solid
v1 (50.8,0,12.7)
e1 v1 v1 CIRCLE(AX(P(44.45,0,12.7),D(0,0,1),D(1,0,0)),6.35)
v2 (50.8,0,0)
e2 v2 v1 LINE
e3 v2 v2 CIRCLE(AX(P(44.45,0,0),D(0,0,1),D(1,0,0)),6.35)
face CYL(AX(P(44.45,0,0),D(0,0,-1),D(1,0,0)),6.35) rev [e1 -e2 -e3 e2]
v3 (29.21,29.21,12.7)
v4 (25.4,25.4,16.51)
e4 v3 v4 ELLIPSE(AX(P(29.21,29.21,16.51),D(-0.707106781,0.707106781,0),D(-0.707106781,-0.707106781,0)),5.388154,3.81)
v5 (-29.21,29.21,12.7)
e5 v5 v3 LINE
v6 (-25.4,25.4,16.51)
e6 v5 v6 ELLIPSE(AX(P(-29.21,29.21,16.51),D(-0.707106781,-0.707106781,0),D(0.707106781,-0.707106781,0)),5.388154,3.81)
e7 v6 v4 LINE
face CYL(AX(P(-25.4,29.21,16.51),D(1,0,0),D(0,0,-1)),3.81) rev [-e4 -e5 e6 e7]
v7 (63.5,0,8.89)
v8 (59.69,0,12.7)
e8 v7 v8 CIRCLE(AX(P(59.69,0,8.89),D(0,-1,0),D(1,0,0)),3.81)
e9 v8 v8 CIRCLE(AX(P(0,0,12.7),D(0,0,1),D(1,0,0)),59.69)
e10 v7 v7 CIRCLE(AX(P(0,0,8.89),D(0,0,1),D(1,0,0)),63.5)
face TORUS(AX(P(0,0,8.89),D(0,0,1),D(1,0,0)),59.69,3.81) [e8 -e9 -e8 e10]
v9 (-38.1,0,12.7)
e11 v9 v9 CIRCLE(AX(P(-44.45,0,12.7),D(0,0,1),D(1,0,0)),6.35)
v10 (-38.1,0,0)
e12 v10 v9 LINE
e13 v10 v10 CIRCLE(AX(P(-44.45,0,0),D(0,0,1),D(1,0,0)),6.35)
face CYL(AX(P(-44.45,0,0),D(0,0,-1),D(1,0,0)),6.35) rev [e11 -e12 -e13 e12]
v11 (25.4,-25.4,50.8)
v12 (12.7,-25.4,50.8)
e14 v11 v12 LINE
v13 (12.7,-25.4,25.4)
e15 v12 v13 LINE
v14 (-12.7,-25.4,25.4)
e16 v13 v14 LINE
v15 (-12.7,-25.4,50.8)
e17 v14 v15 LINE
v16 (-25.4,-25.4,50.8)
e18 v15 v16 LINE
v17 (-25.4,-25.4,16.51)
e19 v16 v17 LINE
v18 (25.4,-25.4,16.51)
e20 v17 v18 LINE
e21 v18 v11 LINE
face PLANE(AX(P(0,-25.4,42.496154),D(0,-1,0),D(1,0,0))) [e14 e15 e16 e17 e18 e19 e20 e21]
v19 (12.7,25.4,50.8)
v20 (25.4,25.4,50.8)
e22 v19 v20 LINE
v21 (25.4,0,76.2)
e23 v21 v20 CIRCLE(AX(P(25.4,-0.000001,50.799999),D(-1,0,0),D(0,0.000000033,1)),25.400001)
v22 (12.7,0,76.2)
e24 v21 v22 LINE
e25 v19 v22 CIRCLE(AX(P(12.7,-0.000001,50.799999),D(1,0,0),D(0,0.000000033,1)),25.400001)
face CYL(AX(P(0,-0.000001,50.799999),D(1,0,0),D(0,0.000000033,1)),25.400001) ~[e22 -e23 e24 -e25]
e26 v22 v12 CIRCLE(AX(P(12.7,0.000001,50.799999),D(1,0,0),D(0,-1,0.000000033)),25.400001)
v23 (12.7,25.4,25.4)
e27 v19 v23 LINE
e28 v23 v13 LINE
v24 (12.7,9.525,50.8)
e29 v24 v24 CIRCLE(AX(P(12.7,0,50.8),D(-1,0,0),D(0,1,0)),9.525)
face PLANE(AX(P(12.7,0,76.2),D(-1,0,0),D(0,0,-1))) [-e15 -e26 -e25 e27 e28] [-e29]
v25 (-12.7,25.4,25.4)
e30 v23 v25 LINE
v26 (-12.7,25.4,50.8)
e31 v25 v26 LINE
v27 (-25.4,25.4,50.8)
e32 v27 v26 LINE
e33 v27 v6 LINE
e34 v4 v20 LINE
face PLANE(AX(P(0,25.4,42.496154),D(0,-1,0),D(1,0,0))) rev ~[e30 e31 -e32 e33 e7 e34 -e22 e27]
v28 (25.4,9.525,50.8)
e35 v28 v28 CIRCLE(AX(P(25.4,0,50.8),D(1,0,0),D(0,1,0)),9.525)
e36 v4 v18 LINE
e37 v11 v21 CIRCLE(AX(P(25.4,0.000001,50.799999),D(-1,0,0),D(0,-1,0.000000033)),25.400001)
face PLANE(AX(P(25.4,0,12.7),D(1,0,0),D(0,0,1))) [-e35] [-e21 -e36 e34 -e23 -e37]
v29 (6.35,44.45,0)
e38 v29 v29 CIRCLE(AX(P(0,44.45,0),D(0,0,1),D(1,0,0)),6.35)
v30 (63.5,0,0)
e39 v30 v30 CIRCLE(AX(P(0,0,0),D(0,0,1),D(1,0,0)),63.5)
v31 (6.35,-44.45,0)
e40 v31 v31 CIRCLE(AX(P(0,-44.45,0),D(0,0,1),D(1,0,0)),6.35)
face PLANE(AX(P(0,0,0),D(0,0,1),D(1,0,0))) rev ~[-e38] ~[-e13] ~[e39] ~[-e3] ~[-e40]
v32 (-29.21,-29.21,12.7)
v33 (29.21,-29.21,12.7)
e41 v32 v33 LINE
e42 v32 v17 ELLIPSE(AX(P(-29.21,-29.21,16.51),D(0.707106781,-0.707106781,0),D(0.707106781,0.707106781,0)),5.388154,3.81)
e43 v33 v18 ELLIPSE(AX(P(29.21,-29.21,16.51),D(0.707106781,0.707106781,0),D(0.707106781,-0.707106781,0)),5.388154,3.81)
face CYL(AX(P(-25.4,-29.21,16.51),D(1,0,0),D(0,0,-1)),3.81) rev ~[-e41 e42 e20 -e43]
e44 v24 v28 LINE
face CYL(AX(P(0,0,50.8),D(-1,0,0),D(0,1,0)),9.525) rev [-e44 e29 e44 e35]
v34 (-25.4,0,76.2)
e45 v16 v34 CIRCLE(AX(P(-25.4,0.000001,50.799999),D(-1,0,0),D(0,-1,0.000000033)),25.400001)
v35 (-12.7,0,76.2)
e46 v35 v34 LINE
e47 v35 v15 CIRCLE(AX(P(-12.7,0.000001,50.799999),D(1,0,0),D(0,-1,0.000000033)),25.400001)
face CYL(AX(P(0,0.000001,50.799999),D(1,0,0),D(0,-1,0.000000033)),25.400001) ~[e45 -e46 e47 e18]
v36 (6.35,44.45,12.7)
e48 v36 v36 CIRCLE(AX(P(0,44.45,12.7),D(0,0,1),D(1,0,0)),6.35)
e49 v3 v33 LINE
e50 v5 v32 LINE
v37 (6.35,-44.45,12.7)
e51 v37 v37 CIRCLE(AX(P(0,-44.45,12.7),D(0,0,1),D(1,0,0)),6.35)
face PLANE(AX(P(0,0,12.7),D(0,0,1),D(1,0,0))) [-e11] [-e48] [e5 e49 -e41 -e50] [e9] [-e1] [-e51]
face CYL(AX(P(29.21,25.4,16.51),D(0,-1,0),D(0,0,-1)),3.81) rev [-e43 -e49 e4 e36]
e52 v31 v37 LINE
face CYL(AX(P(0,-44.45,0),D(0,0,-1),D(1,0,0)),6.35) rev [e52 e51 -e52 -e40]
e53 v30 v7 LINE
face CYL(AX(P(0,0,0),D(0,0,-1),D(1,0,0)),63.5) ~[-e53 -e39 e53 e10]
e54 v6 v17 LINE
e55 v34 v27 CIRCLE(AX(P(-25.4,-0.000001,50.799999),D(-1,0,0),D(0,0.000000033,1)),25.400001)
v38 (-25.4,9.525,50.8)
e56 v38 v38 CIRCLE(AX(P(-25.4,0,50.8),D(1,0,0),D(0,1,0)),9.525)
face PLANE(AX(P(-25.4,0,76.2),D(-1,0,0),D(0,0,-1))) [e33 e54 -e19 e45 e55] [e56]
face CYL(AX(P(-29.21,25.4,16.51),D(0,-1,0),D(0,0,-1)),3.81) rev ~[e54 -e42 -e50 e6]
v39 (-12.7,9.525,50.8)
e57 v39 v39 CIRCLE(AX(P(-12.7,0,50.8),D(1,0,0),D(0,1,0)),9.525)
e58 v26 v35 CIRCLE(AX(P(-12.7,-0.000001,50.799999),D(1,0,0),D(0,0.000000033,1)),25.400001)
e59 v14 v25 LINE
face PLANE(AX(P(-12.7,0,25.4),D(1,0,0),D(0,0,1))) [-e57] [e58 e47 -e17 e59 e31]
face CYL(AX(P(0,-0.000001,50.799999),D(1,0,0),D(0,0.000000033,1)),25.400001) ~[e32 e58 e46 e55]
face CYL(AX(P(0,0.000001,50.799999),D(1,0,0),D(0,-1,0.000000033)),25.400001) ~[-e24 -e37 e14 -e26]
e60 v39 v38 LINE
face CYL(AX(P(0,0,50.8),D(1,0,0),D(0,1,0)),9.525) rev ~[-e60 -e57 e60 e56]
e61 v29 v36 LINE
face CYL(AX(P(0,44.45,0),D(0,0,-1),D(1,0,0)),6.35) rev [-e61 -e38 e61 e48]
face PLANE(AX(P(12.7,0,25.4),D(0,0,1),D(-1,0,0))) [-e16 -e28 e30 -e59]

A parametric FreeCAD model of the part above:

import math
import FreeCAD as App
import Part
import Sketcher
from FreeCAD import Vector
Q = App.Units.Quantity


def edges_at(feature, points):
    """Names of the edges that pass closest to the given points."""
    edges = feature.Shape.Edges
    near = lambda p: min(range(len(edges)), key=lambda i: edges[i].distToShape(Part.Vertex(*p))[0])
    return sorted({f"Edge{near(p) + 1}" for p in points})


def add_polygon(sketch, points):
    """Adds a closed chain of lines whose ends are joined by coincident constraints."""
    first, n = sketch.GeometryCount, len(points)
    for a, b in zip(points, points[1:] + points[:1]):
        sketch.addGeometry(Part.LineSegment(App.Vector(*a, 0), App.Vector(*b, 0)), False)
    for i in range(n):
        sketch.addConstraint(Sketcher.Constraint("Coincident", first + i, 2, first + (i + 1) % n, 1))

doc = App.newDocument("Part")
body = doc.addObject("PartDesign::Body", "Body")

# Sketch on XY plane
sketch1 = doc.addObject("Sketcher::SketchObject", "Sketch")
body.addObject(sketch1)
sketch1.AttachmentSupport = (doc.XY_Plane, [""])
sketch1.MapMode = "FlatFace"
sketch1.addGeometry(Part.Circle(Vector(0, 0, 0), Vector(0, 0, 1), 64), False)
sketch1.addGeometry(Part.Circle(Vector(0, -44, 0), Vector(0, 0, 1), 6), False)
sketch1.addGeometry(Part.Circle(Vector(-44, 0, 0), Vector(0, 0, 1), 6), False)
sketch1.addGeometry(Part.Circle(Vector(44, 0, 0), Vector(0, 0, 1), 6), False)
sketch1.addGeometry(Part.Circle(Vector(0, 44, 0), Vector(0, 0, 1), 6), False)
sketch1.addConstraint(Sketcher.Constraint("Coincident", 0, 3, -1, 1))
sketch1.addConstraint(Sketcher.Constraint("Equal", 1, 2))
sketch1.addConstraint(Sketcher.Constraint("Equal", 2, 3))
sketch1.addConstraint(Sketcher.Constraint("Equal", 3, 4))
sketch1.addConstraint(Sketcher.Constraint("Symmetric", 2, 3, 3, 3, -1, 1))
sketch1.addConstraint(Sketcher.Constraint("Symmetric", 1, 3, 4, 3, -1, 1))
sketch1.addConstraint(Sketcher.Constraint("PointOnObject", 1, 3, -2))
sketch1.addConstraint(Sketcher.Constraint("PointOnObject", 2, 3, -1))
sketch1.addConstraint(Sketcher.Constraint("Diameter", 0, Q("5 in")))
sketch1.addConstraint(Sketcher.Constraint("Diameter", 1, Q("0.5 in")))
sketch1.addConstraint(Sketcher.Constraint("DistanceX", 2, 3, 3, 3, Q("3.5 in")))
sketch1.addConstraint(Sketcher.Constraint("DistanceY", 1, 3, 4, 3, Q("3.5 in")))
pad1 = doc.addObject("PartDesign::Pad", "Pad")
body.addObject(pad1)
pad1.Profile = sketch1
pad1.Length = Q("0.5 in")

# Sketch on XZ plane
sketch2 = doc.addObject("Sketcher::SketchObject", "Sketch001")
body.addObject(sketch2)
sketch2.AttachmentSupport = (doc.XZ_Plane, [""])
sketch2.MapMode = "FlatFace"
add_polygon(sketch2, [(-25, 76), (-25, 13), (25, 13), (25, 76), (13, 76), (13, 25), (-13, 25), (-13, 76)])  # lines 0-7
sketch2.addConstraint(Sketcher.Constraint("Vertical", 0))
sketch2.addConstraint(Sketcher.Constraint("Horizontal", 1))
sketch2.addConstraint(Sketcher.Constraint("Vertical", 2))
sketch2.addConstraint(Sketcher.Constraint("Horizontal", 3))
sketch2.addConstraint(Sketcher.Constraint("Vertical", 4))
sketch2.addConstraint(Sketcher.Constraint("Horizontal", 5))
sketch2.addConstraint(Sketcher.Constraint("Vertical", 6))
sketch2.addConstraint(Sketcher.Constraint("Horizontal", 7))
sketch2.addConstraint(Sketcher.Constraint("Symmetric", 3, 2, 6, 2, -2))
sketch2.addConstraint(Sketcher.Constraint("Equal", 3, 7))
sketch2.addConstraint(Sketcher.Constraint("Equal", 1, 4))
sketch2.addConstraint(Sketcher.Constraint("DistanceX", 1, 1, 1, 2, Q("2 in")))
sketch2.addConstraint(Sketcher.Constraint("DistanceX", 5, 2, 5, 1, Q("1 in")))
sketch2.addConstraint(Sketcher.Constraint("DistanceY", 0, 2, 0, 1, Q("2.5 in")))
sketch2.addConstraint(Sketcher.Constraint("DistanceY", -1, 1, 2, 2, Q("3 in")))
pad2 = doc.addObject("PartDesign::Pad", "Pad001")
body.addObject(pad2)
pad2.Profile = sketch2
pad2.Length = Q("2 in")
pad2.Midplane = True

# Sketch on YZ plane
sketch3 = doc.addObject("Sketcher::SketchObject", "Sketch002")
body.addObject(sketch3)
sketch3.AttachmentSupport = (doc.YZ_Plane, [""])
sketch3.MapMode = "FlatFace"
sketch3.addGeometry(Part.Circle(Vector(0, 51, 0), Vector(0, 0, 1), 10), False)
sketch3.addGeometry(Part.ArcOfCircle(Part.Circle(Vector(0, 51, 0), Vector(0, 0, 1), 25), math.radians(90), math.radians(180)), False)
sketch3.addGeometry(Part.LineSegment(Vector(0, 76, 0), Vector(-25, 76, 0)), False)
sketch3.addGeometry(Part.LineSegment(Vector(-25, 76, 0), Vector(-25, 51, 0)), False)
sketch3.addGeometry(Part.ArcOfCircle(Part.Circle(Vector(0, 51, 0), Vector(0, 0, 1), 25), math.radians(0), math.radians(90)), False)
sketch3.addGeometry(Part.LineSegment(Vector(25, 51, 0), Vector(25, 76, 0)), False)
sketch3.addGeometry(Part.LineSegment(Vector(25, 76, 0), Vector(0, 76, 0)), False)
sketch3.addConstraint(Sketcher.Constraint("Tangent", 1, 1, 2, 1))
sketch3.addConstraint(Sketcher.Constraint("Coincident", 2, 2, 3, 1))
sketch3.addConstraint(Sketcher.Constraint("Tangent", 3, 2, 1, 2))
sketch3.addConstraint(Sketcher.Constraint("Tangent", 4, 1, 5, 1))
sketch3.addConstraint(Sketcher.Constraint("Coincident", 5, 2, 6, 1))
sketch3.addConstraint(Sketcher.Constraint("Tangent", 6, 2, 4, 2))
sketch3.addConstraint(Sketcher.Constraint("Horizontal", 2))
sketch3.addConstraint(Sketcher.Constraint("Vertical", 3))
sketch3.addConstraint(Sketcher.Constraint("Vertical", 5))
sketch3.addConstraint(Sketcher.Constraint("Horizontal", 6))
sketch3.addConstraint(Sketcher.Constraint("Coincident", 1, 3, 0, 3))
sketch3.addConstraint(Sketcher.Constraint("Coincident", 4, 3, 0, 3))
sketch3.addConstraint(Sketcher.Constraint("Equal", 1, 4))
sketch3.addConstraint(Sketcher.Constraint("PointOnObject", 0, 3, -2))
sketch3.addConstraint(Sketcher.Constraint("Radius", 1, Q("1 in")))
sketch3.addConstraint(Sketcher.Constraint("Diameter", 0, Q("0.75 in")))
sketch3.addConstraint(Sketcher.Constraint("DistanceY", -1, 1, 0, 3, Q("2 in")))
pocket1 = doc.addObject("PartDesign::Pocket", "Pocket")
body.addObject(pocket1)
pocket1.Profile = sketch3
pocket1.Length = Q("2 in")
pocket1.Midplane = True
doc.recompute()

fillet = doc.addObject("PartDesign::Fillet", "Fillet")
body.addObject(fillet)
fillet.Base = (pocket1, edges_at(pocket1, [
    (-63.5, 0, 12.7),
    (25.4, 0, 12.7),
    (0, -25.4, 12.7),
    (-25.4, 0, 12.7),
    (0, 25.4, 12.7),
]))
fillet.Radius = Q("0.15 in")

doc.recompute()
